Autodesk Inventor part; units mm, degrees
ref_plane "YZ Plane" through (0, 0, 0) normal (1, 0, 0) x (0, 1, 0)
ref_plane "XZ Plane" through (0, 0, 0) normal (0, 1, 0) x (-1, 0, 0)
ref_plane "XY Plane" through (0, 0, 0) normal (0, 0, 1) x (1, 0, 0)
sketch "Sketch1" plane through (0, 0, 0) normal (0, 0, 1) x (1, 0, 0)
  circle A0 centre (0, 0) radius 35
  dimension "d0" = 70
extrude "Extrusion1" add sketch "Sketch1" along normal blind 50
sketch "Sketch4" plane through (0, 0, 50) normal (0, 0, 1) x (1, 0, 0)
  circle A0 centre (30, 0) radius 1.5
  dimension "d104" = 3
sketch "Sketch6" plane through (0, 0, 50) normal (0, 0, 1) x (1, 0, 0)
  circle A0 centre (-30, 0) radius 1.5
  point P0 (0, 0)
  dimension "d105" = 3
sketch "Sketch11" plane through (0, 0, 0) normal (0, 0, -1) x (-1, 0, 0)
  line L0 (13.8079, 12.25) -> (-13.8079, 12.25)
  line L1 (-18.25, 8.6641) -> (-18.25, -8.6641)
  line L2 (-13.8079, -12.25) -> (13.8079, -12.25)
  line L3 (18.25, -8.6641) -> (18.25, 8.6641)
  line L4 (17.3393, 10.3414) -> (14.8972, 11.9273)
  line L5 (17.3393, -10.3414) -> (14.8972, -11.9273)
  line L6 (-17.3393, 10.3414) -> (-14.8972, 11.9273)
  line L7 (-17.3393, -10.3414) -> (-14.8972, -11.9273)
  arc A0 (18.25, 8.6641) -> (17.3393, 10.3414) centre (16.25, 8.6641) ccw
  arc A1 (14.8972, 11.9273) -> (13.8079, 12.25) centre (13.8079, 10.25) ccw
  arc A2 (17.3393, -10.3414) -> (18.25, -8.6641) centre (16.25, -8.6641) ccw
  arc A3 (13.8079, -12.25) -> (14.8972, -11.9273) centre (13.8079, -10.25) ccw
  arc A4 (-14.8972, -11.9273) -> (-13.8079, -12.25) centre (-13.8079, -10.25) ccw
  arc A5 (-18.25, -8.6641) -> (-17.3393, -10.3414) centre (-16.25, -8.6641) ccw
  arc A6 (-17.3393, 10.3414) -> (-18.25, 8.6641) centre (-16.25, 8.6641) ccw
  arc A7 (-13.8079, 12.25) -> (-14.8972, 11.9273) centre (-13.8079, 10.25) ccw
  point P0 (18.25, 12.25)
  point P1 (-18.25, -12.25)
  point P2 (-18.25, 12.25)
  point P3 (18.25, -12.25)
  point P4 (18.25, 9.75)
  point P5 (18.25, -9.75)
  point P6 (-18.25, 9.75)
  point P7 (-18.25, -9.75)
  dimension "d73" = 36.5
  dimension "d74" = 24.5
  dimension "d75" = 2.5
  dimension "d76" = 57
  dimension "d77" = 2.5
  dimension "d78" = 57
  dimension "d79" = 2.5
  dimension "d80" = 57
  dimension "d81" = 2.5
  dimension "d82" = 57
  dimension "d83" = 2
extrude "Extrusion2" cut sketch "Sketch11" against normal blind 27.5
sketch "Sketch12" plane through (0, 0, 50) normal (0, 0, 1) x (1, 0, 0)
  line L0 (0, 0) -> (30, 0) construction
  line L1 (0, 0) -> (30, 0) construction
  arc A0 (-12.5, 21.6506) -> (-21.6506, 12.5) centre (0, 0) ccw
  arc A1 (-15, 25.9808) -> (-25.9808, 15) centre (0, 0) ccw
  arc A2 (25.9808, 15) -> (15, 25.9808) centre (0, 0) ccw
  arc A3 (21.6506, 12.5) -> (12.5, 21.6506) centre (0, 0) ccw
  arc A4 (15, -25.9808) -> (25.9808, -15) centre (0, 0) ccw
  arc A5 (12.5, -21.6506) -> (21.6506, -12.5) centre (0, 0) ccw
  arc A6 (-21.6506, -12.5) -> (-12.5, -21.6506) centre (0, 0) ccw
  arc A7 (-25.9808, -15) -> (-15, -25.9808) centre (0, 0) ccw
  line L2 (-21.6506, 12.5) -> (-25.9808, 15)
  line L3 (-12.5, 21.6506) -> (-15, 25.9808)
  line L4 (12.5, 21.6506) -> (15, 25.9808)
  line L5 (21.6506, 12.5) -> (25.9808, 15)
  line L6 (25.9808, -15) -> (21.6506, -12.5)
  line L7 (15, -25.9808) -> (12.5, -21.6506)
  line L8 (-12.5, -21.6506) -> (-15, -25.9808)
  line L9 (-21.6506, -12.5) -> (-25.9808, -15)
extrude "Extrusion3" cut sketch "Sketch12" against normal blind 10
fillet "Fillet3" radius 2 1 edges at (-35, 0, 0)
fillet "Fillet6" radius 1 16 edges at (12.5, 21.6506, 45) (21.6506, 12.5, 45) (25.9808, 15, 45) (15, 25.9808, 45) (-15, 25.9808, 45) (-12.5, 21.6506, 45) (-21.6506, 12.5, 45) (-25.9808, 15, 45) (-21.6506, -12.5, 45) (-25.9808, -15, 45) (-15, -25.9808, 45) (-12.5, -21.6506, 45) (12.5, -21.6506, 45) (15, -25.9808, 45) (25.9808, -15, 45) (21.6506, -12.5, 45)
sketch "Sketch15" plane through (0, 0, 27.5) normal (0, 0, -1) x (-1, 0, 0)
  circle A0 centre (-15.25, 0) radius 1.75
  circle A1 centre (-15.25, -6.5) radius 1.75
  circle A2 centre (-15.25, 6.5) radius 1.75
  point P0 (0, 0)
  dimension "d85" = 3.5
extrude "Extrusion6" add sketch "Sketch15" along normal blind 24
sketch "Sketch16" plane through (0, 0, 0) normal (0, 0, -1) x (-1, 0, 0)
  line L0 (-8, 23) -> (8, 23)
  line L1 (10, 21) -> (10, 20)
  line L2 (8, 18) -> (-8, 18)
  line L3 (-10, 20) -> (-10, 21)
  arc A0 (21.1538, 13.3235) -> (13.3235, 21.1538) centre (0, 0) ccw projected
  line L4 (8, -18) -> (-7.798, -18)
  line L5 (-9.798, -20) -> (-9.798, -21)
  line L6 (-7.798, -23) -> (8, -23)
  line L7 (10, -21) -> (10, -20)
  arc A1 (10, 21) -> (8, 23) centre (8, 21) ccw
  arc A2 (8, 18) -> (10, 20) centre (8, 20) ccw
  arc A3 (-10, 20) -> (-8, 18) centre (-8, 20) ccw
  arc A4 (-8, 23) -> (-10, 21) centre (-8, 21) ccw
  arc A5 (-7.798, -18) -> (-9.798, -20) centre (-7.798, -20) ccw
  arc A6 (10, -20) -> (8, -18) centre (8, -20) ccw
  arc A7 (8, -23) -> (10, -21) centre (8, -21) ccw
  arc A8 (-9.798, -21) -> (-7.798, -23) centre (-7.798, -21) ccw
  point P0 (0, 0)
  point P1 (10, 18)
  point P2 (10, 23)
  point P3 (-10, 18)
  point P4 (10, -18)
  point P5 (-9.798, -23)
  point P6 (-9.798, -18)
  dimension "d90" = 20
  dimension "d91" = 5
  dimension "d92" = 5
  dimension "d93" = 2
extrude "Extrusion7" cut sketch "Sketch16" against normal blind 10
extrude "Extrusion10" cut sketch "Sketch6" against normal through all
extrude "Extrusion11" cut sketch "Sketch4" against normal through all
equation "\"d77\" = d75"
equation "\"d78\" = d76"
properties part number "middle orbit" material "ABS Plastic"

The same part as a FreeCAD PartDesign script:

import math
import FreeCAD as App
import Part
import Sketcher
Q = App.Units.Quantity


def edges_at(feature, points):
    """Names of the edges that pass closest to the given points."""
    edges = feature.Shape.Edges
    near = lambda p: min(range(len(edges)), key=lambda i: edges[i].distToShape(Part.Vertex(*p))[0])
    return sorted({f"Edge{near(p) + 1}" for p in points})

doc = App.newDocument("Part")
body = doc.addObject("PartDesign::Body", "Body")

# Sketch on XY plane
sketch1 = doc.addObject("Sketcher::SketchObject", "Sketch")
body.addObject(sketch1)
sketch1.AttachmentSupport = (doc.XY_Plane, [""])
sketch1.MapMode = "FlatFace"
sketch1.addGeometry(Part.Circle(App.Vector(0, 0, 0), App.Vector(0, 0, 1), 35), False)
sketch1.addConstraint([
    Sketcher.Constraint("Coincident", 0, 3, -1, 1),
    Sketcher.Constraint("Diameter", 0, Q("70 mm")),
])
pad1 = doc.addObject("PartDesign::Pad", "Pad")
body.addObject(pad1)
pad1.Profile = sketch1
pad1.Length = 50

# Sketch on XY plane
sketch2 = doc.addObject("Sketcher::SketchObject", "Sketch001")
body.addObject(sketch2)
sketch2.AttachmentSupport = (doc.XY_Plane, [""])
sketch2.MapMode = "FlatFace"
sketch2.addGeometry([
    Part.ArcOfCircle(Part.Circle(App.Vector(-13.8, 10.2, 0), App.Vector(0, 0, 1), 2), math.radians(90), math.radians(123)),  # 0
    Part.LineSegment(App.Vector(-13.8, 12.2, 0), App.Vector(13.8, 12.2, 0)),  # 1
    Part.ArcOfCircle(Part.Circle(App.Vector(13.8, 10.2, 0), App.Vector(0, 0, 1), 2), math.radians(57), math.radians(90)),  # 2
    Part.LineSegment(App.Vector(14.9, 11.9, 0), App.Vector(17.3, 10.3, 0)),  # 3
    Part.ArcOfCircle(Part.Circle(App.Vector(16.2, 8.7, 0), App.Vector(0, 0, 1), 2), math.radians(0), math.radians(57)),  # 4
    Part.LineSegment(App.Vector(18.2, 8.7, 0), App.Vector(18.2, -8.7, 0)),  # 5
    Part.ArcOfCircle(Part.Circle(App.Vector(16.2, -8.7, 0), App.Vector(0, 0, 1), 2), math.radians(-57), math.radians(0)),  # 6
    Part.LineSegment(App.Vector(17.3, -10.3, 0), App.Vector(14.9, -11.9, 0)),  # 7
    Part.ArcOfCircle(Part.Circle(App.Vector(13.8, -10.2, 0), App.Vector(0, 0, 1), 2), math.radians(-90), math.radians(-57)),  # 8
    Part.LineSegment(App.Vector(13.8, -12.2, 0), App.Vector(-13.8, -12.2, 0)),  # 9
    Part.ArcOfCircle(Part.Circle(App.Vector(-13.8, -10.2, 0), App.Vector(0, 0, 1), 2), math.radians(-123), math.radians(-90)),  # 10
    Part.LineSegment(App.Vector(-14.9, -11.9, 0), App.Vector(-17.3, -10.3, 0)),  # 11
    Part.ArcOfCircle(Part.Circle(App.Vector(-16.2, -8.7, 0), App.Vector(0, 0, 1), 2), math.radians(180), math.radians(237)),  # 12
    Part.LineSegment(App.Vector(-18.2, -8.7, 0), App.Vector(-18.2, 8.7, 0)),  # 13
    Part.ArcOfCircle(Part.Circle(App.Vector(-16.2, 8.7, 0), App.Vector(0, 0, 1), 2), math.radians(123), math.radians(180)),  # 14
    Part.LineSegment(App.Vector(-17.3, 10.3, 0), App.Vector(-14.9, 11.9, 0)),  # 15
], False)
sketch2.addConstraint([
    Sketcher.Constraint("Tangent", 0, 1, 1, 1),
    Sketcher.Constraint("Tangent", 1, 2, 2, 2),
    Sketcher.Constraint("Tangent", 2, 1, 3, 1),
    Sketcher.Constraint("Tangent", 3, 2, 4, 2),
    Sketcher.Constraint("Tangent", 4, 1, 5, 1),
    Sketcher.Constraint("Tangent", 5, 2, 6, 2),
    Sketcher.Constraint("Tangent", 6, 1, 7, 1),
    Sketcher.Constraint("Tangent", 7, 2, 8, 2),
    Sketcher.Constraint("Tangent", 8, 1, 9, 1),
    Sketcher.Constraint("Tangent", 9, 2, 10, 2),
    Sketcher.Constraint("Tangent", 10, 1, 11, 1),
    Sketcher.Constraint("Tangent", 11, 2, 12, 2),
    Sketcher.Constraint("Tangent", 12, 1, 13, 1),
    Sketcher.Constraint("Tangent", 13, 2, 14, 2),
    Sketcher.Constraint("Tangent", 14, 1, 15, 1),
    Sketcher.Constraint("Tangent", 15, 2, 0, 2),
    Sketcher.Constraint("Horizontal", 1),
    Sketcher.Constraint("Vertical", 5),
    Sketcher.Constraint("Horizontal", 9),
    Sketcher.Constraint("Vertical", 13),
    Sketcher.Constraint("Equal", 0, 2),
    Sketcher.Constraint("Equal", 2, 4),
    Sketcher.Constraint("Equal", 4, 6),
    Sketcher.Constraint("Equal", 6, 8),
    Sketcher.Constraint("Equal", 8, 10),
    Sketcher.Constraint("Equal", 10, 12),
    Sketcher.Constraint("Equal", 12, 14),
    Sketcher.Constraint("Symmetric", 0, 3, 8, 3, -1, 1),
    Sketcher.Constraint("Symmetric", 4, 3, 12, 3, -1, 1),
    Sketcher.Constraint("Symmetric", 7, 2, 10, 1, -2),
    Sketcher.Constraint("Symmetric", 3, 2, 14, 1, -2),
    Sketcher.Constraint("Radius", 0, Q("2 mm")),
    Sketcher.Constraint("DistanceY", 9, 2, 0, 1, Q("24.5 mm")),
    Sketcher.Constraint("Angle", 3, Q("-32.9997 deg")),
    Sketcher.Constraint("DistanceX", 12, 3, 6, 3, Q("32.5 mm")),
    Sketcher.Constraint("DistanceX", 1, 1, 1, 2, Q("27.6158 mm")),
])
pocket1 = doc.addObject("PartDesign::Pocket", "Pocket")
body.addObject(pocket1)
pocket1.Profile = sketch2
pocket1.Length = 27.5
pocket1.Reversed = True

# Sketch on XY plane
sketch3 = doc.addObject("Sketcher::SketchObject", "Sketch002")
body.addObject(sketch3)
sketch3.AttachmentSupport = (doc.XY_Plane, [""])
sketch3.MapMode = "FlatFace"
sketch3.AttachmentOffset = App.Placement(App.Vector(0, 0, 50), App.Rotation())
sketch3.addGeometry([
    Part.ArcOfCircle(Part.Circle(App.Vector(0, 0, 0), App.Vector(0, 0, 1), 25), math.radians(120), math.radians(150)),  # 0
    Part.LineSegment(App.Vector(-12, 22, 0), App.Vector(-15, 26, 0)),  # 1
    Part.ArcOfCircle(Part.Circle(App.Vector(0, 0, 0), App.Vector(0, 0, 1), 30), math.radians(120), math.radians(150)),  # 2
    Part.LineSegment(App.Vector(-26, 15, 0), App.Vector(-22, 12, 0)),  # 3
    Part.LineSegment(App.Vector(22, 12, 0), App.Vector(26, 15, 0)),  # 4
    Part.ArcOfCircle(Part.Circle(App.Vector(0, 0, 0), App.Vector(0, 0, 1), 30), math.radians(30), math.radians(60)),  # 5
    Part.LineSegment(App.Vector(15, 26, 0), App.Vector(12, 22, 0)),  # 6
    Part.ArcOfCircle(Part.Circle(App.Vector(0, 0, 0), App.Vector(0, 0, 1), 25), math.radians(30), math.radians(60)),  # 7
    Part.LineSegment(App.Vector(12, -22, 0), App.Vector(15, -26, 0)),  # 8
    Part.ArcOfCircle(Part.Circle(App.Vector(0, 0, 0), App.Vector(0, 0, 1), 30), math.radians(-60), math.radians(-30)),  # 9
    Part.LineSegment(App.Vector(26, -15, 0), App.Vector(22, -12, 0)),  # 10
    Part.ArcOfCircle(Part.Circle(App.Vector(0, 0, 0), App.Vector(0, 0, 1), 25), math.radians(-60), math.radians(-30)),  # 11
    Part.ArcOfCircle(Part.Circle(App.Vector(0, 0, 0), App.Vector(0, 0, 1), 25), math.radians(-150), math.radians(-120)),  # 12
    Part.LineSegment(App.Vector(-22, -12, 0), App.Vector(-26, -15, 0)),  # 13
    Part.ArcOfCircle(Part.Circle(App.Vector(0, 0, 0), App.Vector(0, 0, 1), 30), math.radians(-150), math.radians(-120)),  # 14
    Part.LineSegment(App.Vector(-15, -26, 0), App.Vector(-12, -22, 0)),  # 15
], False)
sketch3.addConstraint([
    Sketcher.Constraint("Coincident", 0, 1, 1, 1),
    Sketcher.Constraint("Coincident", 1, 2, 2, 1),
    Sketcher.Constraint("Coincident", 2, 2, 3, 1),
    Sketcher.Constraint("Coincident", 3, 2, 0, 2),
    Sketcher.Constraint("Coincident", 4, 2, 5, 1),
    Sketcher.Constraint("Coincident", 5, 2, 6, 1),
    Sketcher.Constraint("Coincident", 6, 2, 7, 2),
    Sketcher.Constraint("Coincident", 7, 1, 4, 1),
    Sketcher.Constraint("Coincident", 8, 2, 9, 1),
    Sketcher.Constraint("Coincident", 9, 2, 10, 1),
    Sketcher.Constraint("Coincident", 10, 2, 11, 2),
    Sketcher.Constraint("Coincident", 11, 1, 8, 1),
    Sketcher.Constraint("Coincident", 12, 1, 13, 1),
    Sketcher.Constraint("Coincident", 13, 2, 14, 1),
    Sketcher.Constraint("Coincident", 14, 2, 15, 1),
    Sketcher.Constraint("Coincident", 15, 2, 12, 2),
    Sketcher.Constraint("Coincident", 0, 3, -1, 1),
    Sketcher.Constraint("Coincident", 2, 3, -1, 1),
    Sketcher.Constraint("Coincident", 5, 3, -1, 1),
    Sketcher.Constraint("Coincident", 7, 3, -1, 1),
    Sketcher.Constraint("Coincident", 9, 3, -1, 1),
    Sketcher.Constraint("Coincident", 11, 3, -1, 1),
    Sketcher.Constraint("Coincident", 12, 3, -1, 1),
    Sketcher.Constraint("Coincident", 14, 3, -1, 1),
    Sketcher.Constraint("Equal", 2, 5),
    Sketcher.Constraint("Equal", 0, 7),
    Sketcher.Constraint("Equal", 5, 9),
    Sketcher.Constraint("Equal", 7, 11),
    Sketcher.Constraint("Equal", 11, 12),
    Sketcher.Constraint("Equal", 9, 14),
    Sketcher.Constraint("Perpendicular", 1, 4),
    Sketcher.Constraint("Perpendicular", 3, 6),
    Sketcher.Constraint("Perpendicular", 4, 8),
    Sketcher.Constraint("Perpendicular", 6, 10),
    Sketcher.Constraint("Perpendicular", 8, 13),
    Sketcher.Constraint("Perpendicular", 10, 15),
    Sketcher.Constraint("Horizontal", 2, 2, 4, 2),
    Sketcher.Constraint("Horizontal", 1, 2, 5, 2),
    Sketcher.Constraint("Horizontal", 0, 1, 6, 2),
    Sketcher.Constraint("Horizontal", 10, 2, 12, 1),
    Sketcher.Constraint("Horizontal", 8, 2, 14, 2),
    Sketcher.Constraint("Vertical", 5, 2, 8, 2),
    Sketcher.Constraint("Vertical", 4, 2, 9, 2),
    Sketcher.Constraint("Radius", 0, Q("25 mm")),
    Sketcher.Constraint("Radius", 2, Q("30 mm")),
    Sketcher.Constraint("Angle", 1, Q("119.9996 deg")),
    Sketcher.Constraint("DistanceX", 1, 2, -1, 1, Q("15 mm")),
    Sketcher.Constraint("DistanceY", -1, 1, 2, 2, Q("15 mm")),
])
pocket2 = doc.addObject("PartDesign::Pocket", "Pocket001")
body.addObject(pocket2)
pocket2.Profile = sketch3
pocket2.Length = 10
doc.recompute()

fillet = doc.addObject("PartDesign::Fillet", "Fillet")
body.addObject(fillet)
fillet.Base = (pocket2, edges_at(pocket2, [(-35, 0, 0)]))
fillet.Radius = 2
doc.recompute()

fillet2 = doc.addObject("PartDesign::Fillet", "Fillet001")
body.addObject(fillet2)
fillet2.Base = (fillet, edges_at(fillet, [
    (12.5, 21.651, 45),
    (21.651, 12.5, 45),
    (25.981, 15, 45),
    (15, 25.981, 45),
    (-15, 25.981, 45),
    (-12.5, 21.651, 45),
    (-21.651, 12.5, 45),
    (-25.981, 15, 45),
    (-21.651, -12.5, 45),
    (-25.981, -15, 45),
    (-15, -25.981, 45),
    (-12.5, -21.651, 45),
    (12.5, -21.651, 45),
    (15, -25.981, 45),
    (25.981, -15, 45),
    (21.651, -12.5, 45),
]))
fillet2.Radius = 1

# Sketch on XY plane
sketch4 = doc.addObject("Sketcher::SketchObject", "Sketch003")
body.addObject(sketch4)
sketch4.AttachmentSupport = (doc.XY_Plane, [""])
sketch4.MapMode = "FlatFace"
sketch4.AttachmentOffset = App.Placement(App.Vector(0, 0, 27.5), App.Rotation())
sketch4.addGeometry([
    Part.Circle(App.Vector(15.2, 0, 0), App.Vector(0, 0, 1), 1.8),
    Part.Circle(App.Vector(15.2, -6.5, 0), App.Vector(0, 0, 1), 1.8),
    Part.Circle(App.Vector(15.2, 6.5, 0), App.Vector(0, 0, 1), 1.8),
], False)
sketch4.addConstraint([
    Sketcher.Constraint("Equal", 0, 1),
    Sketcher.Constraint("Equal", 1, 2),
    Sketcher.Constraint("Symmetric", 1, 3, 2, 3, -1),
    Sketcher.Constraint("PointOnObject", 0, 3, -1),
    Sketcher.Constraint("Vertical", 0, 3, 1, 3),
    Sketcher.Constraint("Diameter", 0, Q("3.5 mm")),
    Sketcher.Constraint("DistanceY", 1, 3, 2, 3, Q("13 mm")),
    Sketcher.Constraint("DistanceX", -1, 1, 0, 3, Q("15.25 mm")),
])
pad2 = doc.addObject("PartDesign::Pad", "Pad001")
body.addObject(pad2)
pad2.Profile = sketch4
pad2.Length = 24
pad2.Reversed = True

# Sketch on XY plane
sketch5 = doc.addObject("Sketcher::SketchObject", "Sketch004")
body.addObject(sketch5)
sketch5.AttachmentSupport = (doc.XY_Plane, [""])
sketch5.MapMode = "FlatFace"
sketch5.addGeometry([
    Part.LineSegment(App.Vector(-8, 23, 0), App.Vector(8, 23, 0)),  # 0
    Part.ArcOfCircle(Part.Circle(App.Vector(8, 21, 0), App.Vector(0, 0, 1), 2), math.radians(0), math.radians(90)),  # 1
    Part.LineSegment(App.Vector(10, 21, 0), App.Vector(10, 20, 0)),  # 2
    Part.ArcOfCircle(Part.Circle(App.Vector(8, 20, 0), App.Vector(0, 0, 1), 2), math.radians(-90), math.radians(0)),  # 3
    Part.LineSegment(App.Vector(8, 18, 0), App.Vector(-8, 18, 0)),  # 4
    Part.ArcOfCircle(Part.Circle(App.Vector(-8, 20, 0), App.Vector(0, 0, 1), 2), math.radians(180), math.radians(270)),  # 5
    Part.LineSegment(App.Vector(-10, 20, 0), App.Vector(-10, 21, 0)),  # 6
    Part.ArcOfCircle(Part.Circle(App.Vector(-8, 21, 0), App.Vector(0, 0, 1), 2), math.radians(90), math.radians(180)),  # 7
    Part.ArcOfCircle(Part.Circle(App.Vector(-8, -20, 0), App.Vector(0, 0, 1), 2), math.radians(90), math.radians(180)),  # 8
    Part.LineSegment(App.Vector(-8, -18, 0), App.Vector(7.8, -18, 0)),  # 9
    Part.ArcOfCircle(Part.Circle(App.Vector(7.8, -20, 0), App.Vector(0, 0, 1), 2), math.radians(0), math.radians(90)),  # 10
    Part.LineSegment(App.Vector(9.8, -20, 0), App.Vector(9.8, -21, 0)),  # 11
    Part.ArcOfCircle(Part.Circle(App.Vector(7.8, -21, 0), App.Vector(0, 0, 1), 2), math.radians(-90), math.radians(0)),  # 12
    Part.LineSegment(App.Vector(7.8, -23, 0), App.Vector(-8, -23, 0)),  # 13
    Part.ArcOfCircle(Part.Circle(App.Vector(-8, -21, 0), App.Vector(0, 0, 1), 2), math.radians(180), math.radians(270)),  # 14
    Part.LineSegment(App.Vector(-10, -21, 0), App.Vector(-10, -20, 0)),  # 15
], False)
sketch5.addConstraint([
    Sketcher.Constraint("Tangent", 0, 2, 1, 2),
    Sketcher.Constraint("Tangent", 1, 1, 2, 1),
    Sketcher.Constraint("Tangent", 2, 2, 3, 2),
    Sketcher.Constraint("Tangent", 3, 1, 4, 1),
    Sketcher.Constraint("Tangent", 4, 2, 5, 2),
    Sketcher.Constraint("Tangent", 5, 1, 6, 1),
    Sketcher.Constraint("Tangent", 6, 2, 7, 2),
    Sketcher.Constraint("Tangent", 7, 1, 0, 1),
    Sketcher.Constraint("Tangent", 8, 1, 9, 1),
    Sketcher.Constraint("Tangent", 9, 2, 10, 2),
    Sketcher.Constraint("Tangent", 10, 1, 11, 1),
    Sketcher.Constraint("Tangent", 11, 2, 12, 2),
    Sketcher.Constraint("Tangent", 12, 1, 13, 1),
    Sketcher.Constraint("Tangent", 13, 2, 14, 2),
    Sketcher.Constraint("Tangent", 14, 1, 15, 1),
    Sketcher.Constraint("Tangent", 15, 2, 8, 2),
    Sketcher.Constraint("Horizontal", 0),
    Sketcher.Constraint("Vertical", 2),
    Sketcher.Constraint("Horizontal", 4),
    Sketcher.Constraint("Vertical", 6),
    Sketcher.Constraint("Horizontal", 9),
    Sketcher.Constraint("Vertical", 11),
    Sketcher.Constraint("Horizontal", 13),
    Sketcher.Constraint("Vertical", 15),
    Sketcher.Constraint("Equal", 1, 3),
    Sketcher.Constraint("Equal", 3, 5),
    Sketcher.Constraint("Equal", 5, 7),
    Sketcher.Constraint("Equal", 7, 8),
    Sketcher.Constraint("Equal", 8, 10),
    Sketcher.Constraint("Equal", 10, 12),
    Sketcher.Constraint("Equal", 12, 14),
    Sketcher.Constraint("Symmetric", 3, 3, 8, 3, -1, 1),
    Sketcher.Constraint("Symmetric", 7, 3, 14, 3, -1),
    Sketcher.Constraint("Radius", 1, Q("2 mm")),
    Sketcher.Constraint("DistanceY", -1, 1, 3, 3, Q("20 mm")),
    Sketcher.Constraint("DistanceY", 3, 1, 0, 2, Q("5 mm")),
    Sketcher.Constraint("DistanceX", 0, 1, 0, 2, Q("16 mm")),
    Sketcher.Constraint("DistanceX", 9, 1, 9, 2, Q("15.798 mm")),
])
pocket3 = doc.addObject("PartDesign::Pocket", "Pocket002")
body.addObject(pocket3)
pocket3.Profile = sketch5
pocket3.Length = 10
pocket3.Reversed = True

# Sketch on XY plane
sketch6 = doc.addObject("Sketcher::SketchObject", "Sketch005")
body.addObject(sketch6)
sketch6.AttachmentSupport = (doc.XY_Plane, [""])
sketch6.MapMode = "FlatFace"
sketch6.AttachmentOffset = App.Placement(App.Vector(0, 0, 50), App.Rotation())
sketch6.addGeometry(Part.Circle(App.Vector(-30, 0, 0), App.Vector(0, 0, 1), 1.5), False)
sketch6.addConstraint([
    Sketcher.Constraint("PointOnObject", 0, 3, -1),
    Sketcher.Constraint("Diameter", 0, Q("3 mm")),
    Sketcher.Constraint("DistanceX", 0, 3, -1, 1, Q("30 mm")),
])
pocket4 = doc.addObject("PartDesign::Pocket", "Pocket003")
body.addObject(pocket4)
pocket4.Profile = sketch6
pocket4.Type = "ThroughAll"

# Sketch on XY plane
sketch7 = doc.addObject("Sketcher::SketchObject", "Sketch006")
body.addObject(sketch7)
sketch7.AttachmentSupport = (doc.XY_Plane, [""])
sketch7.MapMode = "FlatFace"
sketch7.AttachmentOffset = App.Placement(App.Vector(0, 0, 50), App.Rotation())
sketch7.addGeometry(Part.Circle(App.Vector(30, 0, 0), App.Vector(0, 0, 1), 1.5), False)
sketch7.addConstraint([
    Sketcher.Constraint("PointOnObject", 0, 3, -1),
    Sketcher.Constraint("Diameter", 0, Q("3 mm")),
    Sketcher.Constraint("DistanceX", -1, 1, 0, 3, Q("30 mm")),
])
pocket5 = doc.addObject("PartDesign::Pocket", "Pocket004")
body.addObject(pocket5)
pocket5.Profile = sketch7
pocket5.Type = "ThroughAll"

doc.recompute()
